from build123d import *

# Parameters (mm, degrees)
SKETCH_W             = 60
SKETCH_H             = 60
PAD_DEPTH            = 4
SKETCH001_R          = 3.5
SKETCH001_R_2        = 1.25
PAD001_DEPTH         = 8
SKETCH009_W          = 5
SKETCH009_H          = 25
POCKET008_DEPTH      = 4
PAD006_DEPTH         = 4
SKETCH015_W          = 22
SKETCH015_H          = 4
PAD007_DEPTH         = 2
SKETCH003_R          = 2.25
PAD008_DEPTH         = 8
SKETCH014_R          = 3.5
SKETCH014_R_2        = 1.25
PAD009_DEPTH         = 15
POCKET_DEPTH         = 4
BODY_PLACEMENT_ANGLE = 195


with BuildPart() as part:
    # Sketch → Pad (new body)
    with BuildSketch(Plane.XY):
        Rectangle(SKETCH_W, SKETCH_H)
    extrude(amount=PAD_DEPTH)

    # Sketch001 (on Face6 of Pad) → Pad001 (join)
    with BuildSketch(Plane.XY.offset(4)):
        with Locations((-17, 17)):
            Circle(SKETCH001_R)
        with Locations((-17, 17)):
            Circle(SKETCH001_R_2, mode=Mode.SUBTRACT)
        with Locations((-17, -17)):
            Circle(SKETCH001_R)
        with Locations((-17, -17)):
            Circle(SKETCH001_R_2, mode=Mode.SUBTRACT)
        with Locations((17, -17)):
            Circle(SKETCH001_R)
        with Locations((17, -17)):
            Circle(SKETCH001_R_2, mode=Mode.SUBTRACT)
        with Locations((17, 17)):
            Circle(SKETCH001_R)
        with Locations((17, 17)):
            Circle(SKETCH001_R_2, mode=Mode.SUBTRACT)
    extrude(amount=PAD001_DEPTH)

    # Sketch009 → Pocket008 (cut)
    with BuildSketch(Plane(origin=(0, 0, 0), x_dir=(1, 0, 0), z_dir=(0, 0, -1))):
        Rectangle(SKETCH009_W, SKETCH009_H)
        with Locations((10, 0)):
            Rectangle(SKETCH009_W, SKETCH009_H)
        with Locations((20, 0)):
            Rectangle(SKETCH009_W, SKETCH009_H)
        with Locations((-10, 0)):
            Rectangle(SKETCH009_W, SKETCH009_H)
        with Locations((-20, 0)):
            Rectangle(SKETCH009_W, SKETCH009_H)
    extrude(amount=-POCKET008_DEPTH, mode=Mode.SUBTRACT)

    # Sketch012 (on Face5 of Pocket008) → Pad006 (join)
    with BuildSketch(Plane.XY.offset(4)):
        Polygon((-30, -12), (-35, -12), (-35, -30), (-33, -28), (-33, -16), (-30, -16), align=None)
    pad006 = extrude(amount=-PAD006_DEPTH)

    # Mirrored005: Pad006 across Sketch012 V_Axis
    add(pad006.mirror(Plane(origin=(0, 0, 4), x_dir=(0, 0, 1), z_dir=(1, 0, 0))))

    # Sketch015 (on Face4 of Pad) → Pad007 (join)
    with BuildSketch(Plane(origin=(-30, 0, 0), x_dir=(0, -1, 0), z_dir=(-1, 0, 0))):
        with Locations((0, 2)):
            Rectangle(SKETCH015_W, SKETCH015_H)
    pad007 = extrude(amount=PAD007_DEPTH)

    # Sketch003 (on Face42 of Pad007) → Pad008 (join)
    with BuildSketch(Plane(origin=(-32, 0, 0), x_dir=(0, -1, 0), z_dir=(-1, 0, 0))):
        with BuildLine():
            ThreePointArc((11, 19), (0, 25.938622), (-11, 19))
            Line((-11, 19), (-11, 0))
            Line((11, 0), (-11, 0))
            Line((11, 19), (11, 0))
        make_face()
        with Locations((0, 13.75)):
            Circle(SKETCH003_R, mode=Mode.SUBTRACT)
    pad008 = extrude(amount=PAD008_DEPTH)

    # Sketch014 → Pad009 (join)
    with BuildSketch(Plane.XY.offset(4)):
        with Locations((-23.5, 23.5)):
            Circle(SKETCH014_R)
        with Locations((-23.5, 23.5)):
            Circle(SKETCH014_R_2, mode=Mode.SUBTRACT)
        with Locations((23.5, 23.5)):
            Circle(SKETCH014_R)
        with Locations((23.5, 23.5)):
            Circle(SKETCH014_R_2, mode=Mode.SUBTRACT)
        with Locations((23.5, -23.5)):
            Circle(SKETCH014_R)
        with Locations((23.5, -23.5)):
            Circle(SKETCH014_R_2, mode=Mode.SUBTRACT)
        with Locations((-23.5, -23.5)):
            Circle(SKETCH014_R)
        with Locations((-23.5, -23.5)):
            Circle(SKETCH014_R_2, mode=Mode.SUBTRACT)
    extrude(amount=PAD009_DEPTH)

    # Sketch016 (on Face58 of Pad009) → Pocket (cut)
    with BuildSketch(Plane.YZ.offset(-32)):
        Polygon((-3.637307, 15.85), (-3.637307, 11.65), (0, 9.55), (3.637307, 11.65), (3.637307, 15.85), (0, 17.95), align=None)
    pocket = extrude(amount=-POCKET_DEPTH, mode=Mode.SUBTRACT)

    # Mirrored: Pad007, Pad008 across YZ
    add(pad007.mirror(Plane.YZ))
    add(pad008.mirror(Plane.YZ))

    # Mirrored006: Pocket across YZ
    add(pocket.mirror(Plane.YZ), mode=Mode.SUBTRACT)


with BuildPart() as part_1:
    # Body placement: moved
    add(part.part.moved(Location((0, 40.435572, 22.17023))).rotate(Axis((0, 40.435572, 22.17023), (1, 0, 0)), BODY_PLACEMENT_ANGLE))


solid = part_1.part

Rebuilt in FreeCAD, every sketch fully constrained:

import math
import FreeCAD as App
import Part
import Sketcher

V = App.Vector
Q = App.Units.Quantity


def add_polygon(sketch, points):
    """Adds a closed chain of lines whose ends are joined by coincident constraints."""
    first, n = sketch.GeometryCount, len(points)
    for a, b in zip(points, points[1:] + points[:1]):
        sketch.addGeometry(Part.LineSegment(App.Vector(*a, 0), App.Vector(*b, 0)), False)
    for i in range(n):
        sketch.addConstraint(Sketcher.Constraint("Coincident", first + i, 2, first + (i + 1) % n, 1))

doc = App.newDocument("Part")
params = doc.addObject("Spreadsheet::Sheet", "Params")
for row, (alias, value) in enumerate([
    ("sketch1_width", "60 mm"),
    ("pad1_length", "4 mm"),
    ("sketch2_diameter", "7 mm"),
    ("sketch2_diameter2", "2.5 mm"),
    ("pad2_length", "8 mm"),
    ("sketch3_width", "5 mm"),
    ("sketch3_height", "25 mm"),
    ("pocket1_length", "4 mm"),
    ("sketch4_width", "5 mm"),
    ("sketch4_width2", "3 mm"),
    ("sketch4_height", "18 mm"),
    ("sketch4_height2", "12 mm"),
    ("sketch4_height3", "4 mm"),
    ("pad3_length", "4 mm"),
    ("sketch5_width", "22 mm"),
    ("sketch5_height", "4 mm"),
    ("pad4_length", "2 mm"),
    ("sketch6_diameter", "4.5 mm"),
    ("sketch6_width", "22 mm"),
    ("sketch6_height", "19 mm"),
    ("pad5_length", "8 mm"),
    ("sketch7_diameter", "7 mm"),
    ("sketch7_diameter2", "2.5 mm"),
    ("pad6_length", "15 mm"),
    ("sketch8_height", "4.2 mm"),
    ("sketch8_length", "4.2 mm"),
    ("pocket2_length", "4 mm"),
], start=1):
    params.set(f"A{row}", alias)
    params.set(f"B{row}", "=" + value)
    params.setAlias(f"B{row}", alias)

body = doc.addObject("PartDesign::Body", "Body")

# Sketch on XY plane
sketch1 = body.newObject("Sketcher::SketchObject", "Sketch")
sketch1.AttachmentSupport = (doc.getObject("XY_Plane"), [""])
sketch1.MapMode = "FlatFace"
add_polygon(sketch1, [(-30, 30), (-30, -30), (30, -30), (30, 30)])  # lines 0-3
sketch1.addConstraint([
    Sketcher.Constraint("Vertical", 0),
    Sketcher.Constraint("Horizontal", 1),
    Sketcher.Constraint("Vertical", 2),
    Sketcher.Constraint("Horizontal", 3),
    Sketcher.Constraint("Symmetric", 0, 2, 2, 2, -1, 1),
    Sketcher.Constraint("Equal", 3, 0),
    Sketcher.Constraint("DistanceX", 1, 1, 1, 2, Q("60 mm")),
])
sketch1.setExpression("Constraints[10]", "Params.sketch1_width")
pad1 = body.newObject("PartDesign::Pad", "Pad")
pad1.Profile = sketch1
pad1.setExpression("Length", "Params.pad1_length")

# Sketch on XY plane
sketch2 = body.newObject("Sketcher::SketchObject", "Sketch001")
sketch2.AttachmentSupport = (doc.getObject("XY_Plane"), [""])
sketch2.MapMode = "FlatFace"
sketch2.AttachmentOffset = App.Placement(V(0, 0, 4), App.Rotation())
sketch2.addGeometry([
    Part.Circle(V(-17, 17, 0), V(0, 0, 1), 3.5),  # 0
    Part.Circle(V(-17, 17, 0), V(0, 0, 1), 1.25),  # 1
    Part.Circle(V(-17, -17, 0), V(0, 0, 1), 3.5),  # 2
    Part.Circle(V(-17, -17, 0), V(0, 0, 1), 1.25),  # 3
    Part.Circle(V(17, -17, 0), V(0, 0, 1), 3.5),  # 4
    Part.Circle(V(17, -17, 0), V(0, 0, 1), 1.25),  # 5
    Part.Circle(V(17, 17, 0), V(0, 0, 1), 3.5),  # 6
    Part.Circle(V(17, 17, 0), V(0, 0, 1), 1.25),  # 7
], False)
sketch2.addConstraint([
    Sketcher.Constraint("Coincident", 1, 3, 0, 3),
    Sketcher.Constraint("Coincident", 3, 3, 2, 3),
    Sketcher.Constraint("Coincident", 5, 3, 4, 3),
    Sketcher.Constraint("Coincident", 7, 3, 6, 3),
    Sketcher.Constraint("Equal", 0, 2),
    Sketcher.Constraint("Equal", 1, 3),
    Sketcher.Constraint("Equal", 2, 4),
    Sketcher.Constraint("Equal", 3, 5),
    Sketcher.Constraint("Equal", 4, 6),
    Sketcher.Constraint("Equal", 5, 7),
    Sketcher.Constraint("Symmetric", 0, 3, 4, 3, -1, 1),
    Sketcher.Constraint("Symmetric", 2, 3, 6, 3, -1, 1),
    Sketcher.Constraint("Symmetric", 2, 3, 4, 3, -2),
    Sketcher.Constraint("Diameter", 0, Q("7 mm")),
    Sketcher.Constraint("Diameter", 1, Q("2.5 mm")),
    Sketcher.Constraint("DistanceX", 0, 3, -1, 1, Q("17 mm")),
    Sketcher.Constraint("DistanceY", -1, 1, 0, 3, Q("17 mm")),
])
sketch2.setExpression("Constraints[13]", "Params.sketch2_diameter")
sketch2.setExpression("Constraints[14]", "Params.sketch2_diameter2")
pad2 = body.newObject("PartDesign::Pad", "Pad001")
pad2.Profile = sketch2
pad2.setExpression("Length", "Params.pad2_length")

# Sketch on XY plane
sketch3 = body.newObject("Sketcher::SketchObject", "Sketch002")
sketch3.AttachmentSupport = (doc.getObject("XY_Plane"), [""])
sketch3.MapMode = "FlatFace"
add_polygon(sketch3, [(-2.5, -12.5), (-2.5, 12.5), (2.5, 12.5), (2.5, -12.5)])  # lines 0-3
add_polygon(sketch3, [(7.5, -12.5), (7.5, 12.5), (12.5, 12.5), (12.5, -12.5)])  # lines 4-7
add_polygon(sketch3, [(17.5, -12.5), (17.5, 12.5), (22.5, 12.5), (22.5, -12.5)])  # lines 8-11
add_polygon(sketch3, [(-12.5, -12.5), (-12.5, 12.5), (-7.5, 12.5), (-7.5, -12.5)])  # lines 12-15
add_polygon(sketch3, [(-22.5, -12.5), (-22.5, 12.5), (-17.5, 12.5), (-17.5, -12.5)])  # lines 16-19
sketch3.addConstraint([
    Sketcher.Constraint("Vertical", 0),
    Sketcher.Constraint("Horizontal", 1),
    Sketcher.Constraint("Vertical", 2),
    Sketcher.Constraint("Horizontal", 3),
    Sketcher.Constraint("Vertical", 4),
    Sketcher.Constraint("Horizontal", 5),
    Sketcher.Constraint("Vertical", 6),
    Sketcher.Constraint("Horizontal", 7),
    Sketcher.Constraint("Vertical", 8),
    Sketcher.Constraint("Horizontal", 9),
    Sketcher.Constraint("Vertical", 10),
    Sketcher.Constraint("Horizontal", 11),
    Sketcher.Constraint("Vertical", 12),
    Sketcher.Constraint("Horizontal", 13),
    Sketcher.Constraint("Vertical", 14),
    Sketcher.Constraint("Horizontal", 15),
    Sketcher.Constraint("Vertical", 16),
    Sketcher.Constraint("Horizontal", 17),
    Sketcher.Constraint("Vertical", 18),
    Sketcher.Constraint("Horizontal", 19),
    Sketcher.Constraint("Symmetric", 0, 2, 2, 2, -1, 1),
    Sketcher.Constraint("Symmetric", 6, 2, 12, 2, -1, 1),
    Sketcher.Constraint("Symmetric", 4, 2, 14, 2, -1, 1),
    Sketcher.Constraint("Symmetric", 10, 2, 16, 2, -1, 1),
    Sketcher.Constraint("Symmetric", 8, 2, 18, 2, -1, 1),
    Sketcher.Constraint("Horizontal", 1, 2, 4, 2),
    Sketcher.Constraint("Horizontal", 3, 2, 6, 2),
    Sketcher.Constraint("Horizontal", 5, 2, 8, 2),
    Sketcher.Constraint("Horizontal", 7, 2, 10, 2),
    Sketcher.Constraint("Equal", 3, 5),
    Sketcher.Constraint("Equal", 7, 9),
    Sketcher.Constraint("DistanceX", 1, 1, 1, 2, Q("5 mm")),
    Sketcher.Constraint("DistanceY", 0, 1, 0, 2, Q("25 mm")),
    Sketcher.Constraint("DistanceX", 1, 2, 4, 2, Q("5 mm")),
    Sketcher.Constraint("DistanceX", 5, 2, 8, 2, Q("5 mm")),
])
sketch3.setExpression("Constraints[51]", "Params.sketch3_width")
sketch3.setExpression("Constraints[52]", "Params.sketch3_height")
pocket1 = body.newObject("PartDesign::Pocket", "Pocket")
pocket1.Profile = sketch3
pocket1.setExpression("Length", "Params.pocket1_length")
pocket1.Reversed = True

# Sketch on XY plane
sketch4 = body.newObject("Sketcher::SketchObject", "Sketch003")
sketch4.AttachmentSupport = (doc.getObject("XY_Plane"), [""])
sketch4.MapMode = "FlatFace"
sketch4.AttachmentOffset = App.Placement(V(0, 0, 4), App.Rotation())
add_polygon(sketch4, [(-30, -12), (-35, -12), (-35, -30), (-33, -28), (-33, -16), (-30, -16)])  # lines 0-5
sketch4.addConstraint([
    Sketcher.Constraint("Horizontal", 0),
    Sketcher.Constraint("Vertical", 1),
    Sketcher.Constraint("Vertical", 3),
    Sketcher.Constraint("Horizontal", 4),
    Sketcher.Constraint("Vertical", 5),
    Sketcher.Constraint("DistanceX", 0, 2, 0, 1, Q("5 mm")),
    Sketcher.Constraint("DistanceX", 4, 1, 4, 2, Q("3 mm")),
    Sketcher.Constraint("DistanceY", 1, 2, 1, 1, Q("18 mm")),
    Sketcher.Constraint("DistanceY", 3, 1, 3, 2, Q("12 mm")),
    Sketcher.Constraint("DistanceY", 5, 1, 5, 2, Q("4 mm")),
    Sketcher.Constraint("DistanceX", 0, 2, -1, 1, Q("35 mm")),
    Sketcher.Constraint("DistanceY", 0, 2, -1, 1, Q("12 mm")),
])
sketch4.setExpression("Constraints[11]", "Params.sketch4_width")
sketch4.setExpression("Constraints[12]", "Params.sketch4_width2")
sketch4.setExpression("Constraints[13]", "Params.sketch4_height")
sketch4.setExpression("Constraints[14]", "Params.sketch4_height2")
sketch4.setExpression("Constraints[15]", "Params.sketch4_height3")
pad3 = body.newObject("PartDesign::Pad", "Pad002")
pad3.Profile = sketch4
pad3.setExpression("Length", "Params.pad3_length")
pad3.Reversed = True
doc.recompute()

mirrored = body.newObject("PartDesign::Mirrored", "Mirrored")
mirrored.Originals = [pad3]
mirrored.MirrorPlane = (doc.getObject("YZ_Plane"), [""])
body.Tip = mirrored

# Sketch on YZ plane
sketch5 = body.newObject("Sketcher::SketchObject", "Sketch004")
sketch5.AttachmentSupport = (doc.getObject("YZ_Plane"), [""])
sketch5.MapMode = "FlatFace"
sketch5.AttachmentOffset = App.Placement(V(0, 0, -30), App.Rotation())
add_polygon(sketch5, [(11, 4), (11, 0), (-11, 0), (-11, 4)])  # lines 0-3
sketch5.addConstraint([
    Sketcher.Constraint("Vertical", 0),
    Sketcher.Constraint("Horizontal", 1),
    Sketcher.Constraint("Vertical", 2),
    Sketcher.Constraint("Horizontal", 3),
    Sketcher.Constraint("Symmetric", 0, 2, 1, 2, -1, 1),
    Sketcher.Constraint("DistanceX", 1, 2, 1, 1, Q("22 mm")),
    Sketcher.Constraint("DistanceY", 0, 2, 0, 1, Q("4 mm")),
])
sketch5.setExpression("Constraints[9]", "Params.sketch5_width")
sketch5.setExpression("Constraints[10]", "Params.sketch5_height")
pad4 = body.newObject("PartDesign::Pad", "Pad003")
pad4.Profile = sketch5
pad4.setExpression("Length", "Params.pad4_length")
pad4.Reversed = True

# Sketch on YZ plane
sketch6 = body.newObject("Sketcher::SketchObject", "Sketch005")
sketch6.AttachmentSupport = (doc.getObject("YZ_Plane"), [""])
sketch6.MapMode = "FlatFace"
sketch6.AttachmentOffset = App.Placement(V(0, 0, -32), App.Rotation())
sketch6.addGeometry([
    Part.ArcOfCircle(Part.Circle(V(0, 13.75, 0), V(0, 0, 1), 12.188622), math.radians(25.513869), math.radians(154.486131)),  # 0
    Part.LineSegment(V(11, 19, 0), V(11, 0, 0)),  # 1
    Part.LineSegment(V(11, 0, 0), V(-11, 0, 0)),  # 2
    Part.LineSegment(V(-11, 0, 0), V(-11, 19, 0)),  # 3
    Part.Circle(V(0, 13.75, 0), V(0, 0, 1), 2.25),  # 4
], False)
sketch6.addConstraint([
    Sketcher.Constraint("Coincident", 0, 1, 1, 1),
    Sketcher.Constraint("Coincident", 1, 2, 2, 1),
    Sketcher.Constraint("Coincident", 2, 2, 3, 1),
    Sketcher.Constraint("Coincident", 3, 2, 0, 2),
    Sketcher.Constraint("Vertical", 1),
    Sketcher.Constraint("Horizontal", 2),
    Sketcher.Constraint("Vertical", 3),
    Sketcher.Constraint("Coincident", 4, 3, 0, 3),
    Sketcher.Constraint("Symmetric", 1, 2, 2, 2, -1, 1),
    Sketcher.Constraint("PointOnObject", 0, 3, -2),
    Sketcher.Constraint("Diameter", 4, Q("4.5 mm")),
    Sketcher.Constraint("DistanceX", 2, 2, 2, 1, Q("22 mm")),
    Sketcher.Constraint("DistanceY", 1, 2, 1, 1, Q("19 mm")),
    Sketcher.Constraint("DistanceY", -1, 1, 0, 3, Q("13.75 mm")),
])
sketch6.setExpression("Constraints[10]", "Params.sketch6_diameter")
sketch6.setExpression("Constraints[11]", "Params.sketch6_width")
sketch6.setExpression("Constraints[12]", "Params.sketch6_height")
pad5 = body.newObject("PartDesign::Pad", "Pad004")
pad5.Profile = sketch6
pad5.setExpression("Length", "Params.pad5_length")
pad5.Reversed = True

# Sketch on XY plane
sketch7 = body.newObject("Sketcher::SketchObject", "Sketch006")
sketch7.AttachmentSupport = (doc.getObject("XY_Plane"), [""])
sketch7.MapMode = "FlatFace"
sketch7.AttachmentOffset = App.Placement(V(0, 0, 4), App.Rotation())
sketch7.addGeometry([
    Part.Circle(V(-23.5, 23.5, 0), V(0, 0, 1), 3.5),  # 0
    Part.Circle(V(-23.5, 23.5, 0), V(0, 0, 1), 1.25),  # 1
    Part.Circle(V(23.5, 23.5, 0), V(0, 0, 1), 3.5),  # 2
    Part.Circle(V(23.5, 23.5, 0), V(0, 0, 1), 1.25),  # 3
    Part.Circle(V(23.5, -23.5, 0), V(0, 0, 1), 3.5),  # 4
    Part.Circle(V(23.5, -23.5, 0), V(0, 0, 1), 1.25),  # 5
    Part.Circle(V(-23.5, -23.5, 0), V(0, 0, 1), 3.5),  # 6
    Part.Circle(V(-23.5, -23.5, 0), V(0, 0, 1), 1.25),  # 7
], False)
sketch7.addConstraint([
    Sketcher.Constraint("Coincident", 1, 3, 0, 3),
    Sketcher.Constraint("Coincident", 3, 3, 2, 3),
    Sketcher.Constraint("Coincident", 5, 3, 4, 3),
    Sketcher.Constraint("Coincident", 7, 3, 6, 3),
    Sketcher.Constraint("Equal", 0, 2),
    Sketcher.Constraint("Equal", 1, 3),
    Sketcher.Constraint("Equal", 2, 4),
    Sketcher.Constraint("Equal", 3, 5),
    Sketcher.Constraint("Equal", 4, 6),
    Sketcher.Constraint("Equal", 5, 7),
    Sketcher.Constraint("Symmetric", 0, 3, 4, 3, -1, 1),
    Sketcher.Constraint("Symmetric", 2, 3, 6, 3, -1, 1),
    Sketcher.Constraint("Symmetric", 0, 3, 2, 3, -2),
    Sketcher.Constraint("Diameter", 0, Q("7 mm")),
    Sketcher.Constraint("Diameter", 1, Q("2.5 mm")),
    Sketcher.Constraint("DistanceX", 0, 3, 2, 3, Q("47 mm")),
    Sketcher.Constraint("DistanceY", 4, 3, 2, 3, Q("47 mm")),
])
sketch7.setExpression("Constraints[13]", "Params.sketch7_diameter")
sketch7.setExpression("Constraints[14]", "Params.sketch7_diameter2")
pad6 = body.newObject("PartDesign::Pad", "Pad005")
pad6.Profile = sketch7
pad6.setExpression("Length", "Params.pad6_length")

# Sketch on YZ plane
sketch8 = body.newObject("Sketcher::SketchObject", "Sketch007")
sketch8.AttachmentSupport = (doc.getObject("YZ_Plane"), [""])
sketch8.MapMode = "FlatFace"
sketch8.AttachmentOffset = App.Placement(V(0, 0, -32), App.Rotation())
add_polygon(sketch8, [(-3.637307, 15.85), (-3.637307, 11.65), (0, 9.55), (3.637307, 11.65), (3.637307, 15.85), (0, 17.95)])  # lines 0-5
sketch8.addConstraint([
    Sketcher.Constraint("Vertical", 0),
    Sketcher.Constraint("Vertical", 3),
    Sketcher.Constraint("Symmetric", 0, 2, 2, 2, -2),
    Sketcher.Constraint("PointOnObject", 1, 2, -2),
    Sketcher.Constraint("PointOnObject", 4, 2, -2),
    Sketcher.Constraint("Parallel", 1, 4),
    Sketcher.Constraint("Parallel", 2, 5),
    Sketcher.Constraint("Angle", 1, Q("-29.999998 deg")),
    Sketcher.Constraint("DistanceY", 0, 2, 0, 1, Q("4.2 mm")),
    Sketcher.Constraint("Distance", 1, Q("4.2 mm")),
    Sketcher.Constraint("DistanceY", -1, 1, 0, 2, Q("11.65 mm")),
])
sketch8.setExpression("Constraints[14]", "Params.sketch8_height")
sketch8.setExpression("Constraints[15]", "Params.sketch8_length")
pocket2 = body.newObject("PartDesign::Pocket", "Pocket001")
pocket2.Profile = sketch8
pocket2.setExpression("Length", "Params.pocket2_length")
doc.recompute()

mirrored2 = body.newObject("PartDesign::Mirrored", "Mirrored001")
mirrored2.Originals = [pad4, pad5]
mirrored2.MirrorPlane = (doc.getObject("YZ_Plane"), [""])
body.Tip = mirrored2
doc.recompute()

mirrored3 = body.newObject("PartDesign::Mirrored", "Mirrored002")
mirrored3.Originals = [pocket2]
mirrored3.MirrorPlane = (doc.getObject("YZ_Plane"), [""])
body.Tip = mirrored3
body2 = doc.addObject("PartDesign::Body", "Body001")
doc.recompute()

body.Placement = App.Placement(V(0, 40.435572, 22.17023), App.Rotation(V(1, 0, 0), 195))
boolean = body2.newObject("PartDesign::Boolean", "Boolean")
boolean.Type = "Fuse"
boolean.addObjects([body])

doc.recompute()
